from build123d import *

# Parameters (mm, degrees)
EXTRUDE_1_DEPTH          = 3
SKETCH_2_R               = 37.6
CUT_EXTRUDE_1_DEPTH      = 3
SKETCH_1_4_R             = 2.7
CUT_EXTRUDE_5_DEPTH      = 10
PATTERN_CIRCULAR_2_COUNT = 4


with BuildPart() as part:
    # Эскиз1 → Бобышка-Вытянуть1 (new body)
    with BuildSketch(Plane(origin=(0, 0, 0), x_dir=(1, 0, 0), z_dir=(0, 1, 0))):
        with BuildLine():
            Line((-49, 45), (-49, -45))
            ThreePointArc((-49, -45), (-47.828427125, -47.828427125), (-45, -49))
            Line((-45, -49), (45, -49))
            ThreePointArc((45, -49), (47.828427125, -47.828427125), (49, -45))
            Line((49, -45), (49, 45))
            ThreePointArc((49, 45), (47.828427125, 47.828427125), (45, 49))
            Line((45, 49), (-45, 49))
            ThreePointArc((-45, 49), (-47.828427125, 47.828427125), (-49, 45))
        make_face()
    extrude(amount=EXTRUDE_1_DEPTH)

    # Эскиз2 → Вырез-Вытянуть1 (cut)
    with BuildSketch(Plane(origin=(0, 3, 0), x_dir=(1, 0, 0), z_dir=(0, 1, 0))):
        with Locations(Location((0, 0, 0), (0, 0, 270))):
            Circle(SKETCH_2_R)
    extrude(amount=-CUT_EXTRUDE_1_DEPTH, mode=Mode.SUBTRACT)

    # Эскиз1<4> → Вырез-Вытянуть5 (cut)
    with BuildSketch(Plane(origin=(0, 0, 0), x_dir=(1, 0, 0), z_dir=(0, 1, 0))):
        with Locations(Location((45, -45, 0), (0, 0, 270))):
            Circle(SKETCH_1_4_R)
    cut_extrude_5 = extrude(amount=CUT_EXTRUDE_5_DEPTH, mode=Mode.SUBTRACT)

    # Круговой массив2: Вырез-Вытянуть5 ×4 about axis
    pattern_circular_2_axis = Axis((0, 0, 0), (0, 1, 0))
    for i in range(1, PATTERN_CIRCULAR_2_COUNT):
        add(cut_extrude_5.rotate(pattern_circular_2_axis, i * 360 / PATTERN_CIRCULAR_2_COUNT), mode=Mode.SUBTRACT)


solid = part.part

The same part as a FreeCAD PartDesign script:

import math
import FreeCAD as App
import Part
import Sketcher
from FreeCAD import Vector
Q = App.Units.Quantity

doc = App.newDocument("Part")
body = doc.addObject("PartDesign::Body", "Body")

# Sketch on XZ plane
sketch1 = body.newObject("Sketcher::SketchObject", "Sketch")
sketch1.AttachmentSupport = (doc.getObject("XZ_Plane"), [""])
sketch1.MapMode = "FlatFace"
sketch1.addGeometry([
    Part.LineSegment(Vector(-49, -45, 0), Vector(-49, 45, 0)),  # 0
    Part.ArcOfCircle(Part.Circle(Vector(-45, 45, 0), Vector(0, 0, 1), 4), math.radians(90), math.radians(180)),  # 1
    Part.LineSegment(Vector(-45, 49, 0), Vector(45, 49, 0)),  # 2
    Part.ArcOfCircle(Part.Circle(Vector(45, 45, 0), Vector(0, 0, 1), 4), math.radians(0), math.radians(90)),  # 3
    Part.LineSegment(Vector(49, 45, 0), Vector(49, -45, 0)),  # 4
    Part.ArcOfCircle(Part.Circle(Vector(45, -45, 0), Vector(0, 0, 1), 4), math.radians(-90), math.radians(0)),  # 5
    Part.LineSegment(Vector(45, -49, 0), Vector(-45, -49, 0)),  # 6
    Part.ArcOfCircle(Part.Circle(Vector(-45, -45, 0), Vector(0, 0, 1), 4), math.radians(180), math.radians(270)),  # 7
], False)
sketch1.addConstraint([
    Sketcher.Constraint("Tangent", 0, 2, 1, 2),
    Sketcher.Constraint("Tangent", 1, 1, 2, 1),
    Sketcher.Constraint("Tangent", 2, 2, 3, 2),
    Sketcher.Constraint("Tangent", 3, 1, 4, 1),
    Sketcher.Constraint("Tangent", 4, 2, 5, 2),
    Sketcher.Constraint("Tangent", 5, 1, 6, 1),
    Sketcher.Constraint("Tangent", 6, 2, 7, 2),
    Sketcher.Constraint("Tangent", 7, 1, 0, 1),
    Sketcher.Constraint("Vertical", 0),
    Sketcher.Constraint("Horizontal", 2),
    Sketcher.Constraint("Vertical", 4),
    Sketcher.Constraint("Horizontal", 6),
    Sketcher.Constraint("Equal", 1, 3),
    Sketcher.Constraint("Equal", 3, 5),
    Sketcher.Constraint("Equal", 5, 7),
    Sketcher.Constraint("Symmetric", 1, 3, 5, 3, -1, 1),
    Sketcher.Constraint("Equal", 6, 0),
    Sketcher.Constraint("Radius", 1, Q("4 mm")),
    Sketcher.Constraint("DistanceX", 2, 1, 2, 2, Q("90 mm")),
])
pad1 = body.newObject("PartDesign::Pad", "Pad")
pad1.Profile = sketch1
pad1.Length = 3
pad1.Reversed = True

# Sketch on XZ plane
sketch2 = body.newObject("Sketcher::SketchObject", "Sketch001")
sketch2.AttachmentSupport = (doc.getObject("XZ_Plane"), [""])
sketch2.MapMode = "FlatFace"
sketch2.AttachmentOffset = App.Placement(Vector(0, 0, -3), App.Rotation())
sketch2.addGeometry(Part.Circle(Vector(0, 0, 0), Vector(0, 0, 1), 38), False)
sketch2.addConstraint([
    Sketcher.Constraint("Coincident", 0, 3, -1, 1),
    Sketcher.Constraint("Diameter", 0, Q("75.2 mm")),
])
pocket1 = body.newObject("PartDesign::Pocket", "Pocket")
pocket1.Profile = sketch2
pocket1.Length = 3
pocket1.Reversed = True

# Sketch on XZ plane
sketch3 = body.newObject("Sketcher::SketchObject", "Sketch002")
sketch3.AttachmentSupport = (doc.getObject("XZ_Plane"), [""])
sketch3.MapMode = "FlatFace"
sketch3.addGeometry(Part.Circle(Vector(45, 45, 0), Vector(0, 0, 1), 2.7), False)
sketch3.addConstraint([
    Sketcher.Constraint("Diameter", 0, Q("5.4 mm")),
    Sketcher.Constraint("DistanceX", -1, 1, 0, 3, Q("45 mm")),
    Sketcher.Constraint("DistanceY", -1, 1, 0, 3, Q("45 mm")),
])
pocket2 = body.newObject("PartDesign::Pocket", "Pocket001")
pocket2.Profile = sketch3
pocket2.Length = 10
doc.recompute()

polarpattern = body.newObject("PartDesign::PolarPattern", "PolarPattern")
polarpattern.Originals = [pocket2]
polarpattern.Axis = (doc.getObject("Y_Axis"), [""])
polarpattern.Angle = 360
polarpattern.Occurrences = 4
body.Tip = polarpattern

doc.recompute()
